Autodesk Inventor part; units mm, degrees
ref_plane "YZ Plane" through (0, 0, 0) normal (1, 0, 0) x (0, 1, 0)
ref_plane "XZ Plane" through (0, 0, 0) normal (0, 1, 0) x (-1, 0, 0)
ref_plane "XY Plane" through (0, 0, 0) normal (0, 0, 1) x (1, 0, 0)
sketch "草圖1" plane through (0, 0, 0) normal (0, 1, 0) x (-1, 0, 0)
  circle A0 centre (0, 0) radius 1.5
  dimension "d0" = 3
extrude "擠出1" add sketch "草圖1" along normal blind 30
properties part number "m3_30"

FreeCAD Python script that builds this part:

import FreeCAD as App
import Part
import Sketcher

V = App.Vector

doc = App.newDocument("Part")
body = doc.addObject("PartDesign::Body", "Body")

# Sketch on XZ plane
sketch1 = body.newObject("Sketcher::SketchObject", "Sketch")
sketch1.AttachmentSupport = (doc.getObject("XZ_Plane"), [""])
sketch1.MapMode = "FlatFace"
sketch1.addGeometry(Part.Circle(V(0, 0, 0), V(0, 0, 1), 1.5), False)
sketch1.addConstraint(Sketcher.Constraint("Coincident", 0, 3, -1, 1))
sketch1.addConstraint(Sketcher.Constraint("Diameter", 0, 3.0))
pad1 = body.newObject("PartDesign::Pad", "Pad")
pad1.Profile = sketch1
pad1.Length = 30
pad1.Reversed = True

doc.recompute()
